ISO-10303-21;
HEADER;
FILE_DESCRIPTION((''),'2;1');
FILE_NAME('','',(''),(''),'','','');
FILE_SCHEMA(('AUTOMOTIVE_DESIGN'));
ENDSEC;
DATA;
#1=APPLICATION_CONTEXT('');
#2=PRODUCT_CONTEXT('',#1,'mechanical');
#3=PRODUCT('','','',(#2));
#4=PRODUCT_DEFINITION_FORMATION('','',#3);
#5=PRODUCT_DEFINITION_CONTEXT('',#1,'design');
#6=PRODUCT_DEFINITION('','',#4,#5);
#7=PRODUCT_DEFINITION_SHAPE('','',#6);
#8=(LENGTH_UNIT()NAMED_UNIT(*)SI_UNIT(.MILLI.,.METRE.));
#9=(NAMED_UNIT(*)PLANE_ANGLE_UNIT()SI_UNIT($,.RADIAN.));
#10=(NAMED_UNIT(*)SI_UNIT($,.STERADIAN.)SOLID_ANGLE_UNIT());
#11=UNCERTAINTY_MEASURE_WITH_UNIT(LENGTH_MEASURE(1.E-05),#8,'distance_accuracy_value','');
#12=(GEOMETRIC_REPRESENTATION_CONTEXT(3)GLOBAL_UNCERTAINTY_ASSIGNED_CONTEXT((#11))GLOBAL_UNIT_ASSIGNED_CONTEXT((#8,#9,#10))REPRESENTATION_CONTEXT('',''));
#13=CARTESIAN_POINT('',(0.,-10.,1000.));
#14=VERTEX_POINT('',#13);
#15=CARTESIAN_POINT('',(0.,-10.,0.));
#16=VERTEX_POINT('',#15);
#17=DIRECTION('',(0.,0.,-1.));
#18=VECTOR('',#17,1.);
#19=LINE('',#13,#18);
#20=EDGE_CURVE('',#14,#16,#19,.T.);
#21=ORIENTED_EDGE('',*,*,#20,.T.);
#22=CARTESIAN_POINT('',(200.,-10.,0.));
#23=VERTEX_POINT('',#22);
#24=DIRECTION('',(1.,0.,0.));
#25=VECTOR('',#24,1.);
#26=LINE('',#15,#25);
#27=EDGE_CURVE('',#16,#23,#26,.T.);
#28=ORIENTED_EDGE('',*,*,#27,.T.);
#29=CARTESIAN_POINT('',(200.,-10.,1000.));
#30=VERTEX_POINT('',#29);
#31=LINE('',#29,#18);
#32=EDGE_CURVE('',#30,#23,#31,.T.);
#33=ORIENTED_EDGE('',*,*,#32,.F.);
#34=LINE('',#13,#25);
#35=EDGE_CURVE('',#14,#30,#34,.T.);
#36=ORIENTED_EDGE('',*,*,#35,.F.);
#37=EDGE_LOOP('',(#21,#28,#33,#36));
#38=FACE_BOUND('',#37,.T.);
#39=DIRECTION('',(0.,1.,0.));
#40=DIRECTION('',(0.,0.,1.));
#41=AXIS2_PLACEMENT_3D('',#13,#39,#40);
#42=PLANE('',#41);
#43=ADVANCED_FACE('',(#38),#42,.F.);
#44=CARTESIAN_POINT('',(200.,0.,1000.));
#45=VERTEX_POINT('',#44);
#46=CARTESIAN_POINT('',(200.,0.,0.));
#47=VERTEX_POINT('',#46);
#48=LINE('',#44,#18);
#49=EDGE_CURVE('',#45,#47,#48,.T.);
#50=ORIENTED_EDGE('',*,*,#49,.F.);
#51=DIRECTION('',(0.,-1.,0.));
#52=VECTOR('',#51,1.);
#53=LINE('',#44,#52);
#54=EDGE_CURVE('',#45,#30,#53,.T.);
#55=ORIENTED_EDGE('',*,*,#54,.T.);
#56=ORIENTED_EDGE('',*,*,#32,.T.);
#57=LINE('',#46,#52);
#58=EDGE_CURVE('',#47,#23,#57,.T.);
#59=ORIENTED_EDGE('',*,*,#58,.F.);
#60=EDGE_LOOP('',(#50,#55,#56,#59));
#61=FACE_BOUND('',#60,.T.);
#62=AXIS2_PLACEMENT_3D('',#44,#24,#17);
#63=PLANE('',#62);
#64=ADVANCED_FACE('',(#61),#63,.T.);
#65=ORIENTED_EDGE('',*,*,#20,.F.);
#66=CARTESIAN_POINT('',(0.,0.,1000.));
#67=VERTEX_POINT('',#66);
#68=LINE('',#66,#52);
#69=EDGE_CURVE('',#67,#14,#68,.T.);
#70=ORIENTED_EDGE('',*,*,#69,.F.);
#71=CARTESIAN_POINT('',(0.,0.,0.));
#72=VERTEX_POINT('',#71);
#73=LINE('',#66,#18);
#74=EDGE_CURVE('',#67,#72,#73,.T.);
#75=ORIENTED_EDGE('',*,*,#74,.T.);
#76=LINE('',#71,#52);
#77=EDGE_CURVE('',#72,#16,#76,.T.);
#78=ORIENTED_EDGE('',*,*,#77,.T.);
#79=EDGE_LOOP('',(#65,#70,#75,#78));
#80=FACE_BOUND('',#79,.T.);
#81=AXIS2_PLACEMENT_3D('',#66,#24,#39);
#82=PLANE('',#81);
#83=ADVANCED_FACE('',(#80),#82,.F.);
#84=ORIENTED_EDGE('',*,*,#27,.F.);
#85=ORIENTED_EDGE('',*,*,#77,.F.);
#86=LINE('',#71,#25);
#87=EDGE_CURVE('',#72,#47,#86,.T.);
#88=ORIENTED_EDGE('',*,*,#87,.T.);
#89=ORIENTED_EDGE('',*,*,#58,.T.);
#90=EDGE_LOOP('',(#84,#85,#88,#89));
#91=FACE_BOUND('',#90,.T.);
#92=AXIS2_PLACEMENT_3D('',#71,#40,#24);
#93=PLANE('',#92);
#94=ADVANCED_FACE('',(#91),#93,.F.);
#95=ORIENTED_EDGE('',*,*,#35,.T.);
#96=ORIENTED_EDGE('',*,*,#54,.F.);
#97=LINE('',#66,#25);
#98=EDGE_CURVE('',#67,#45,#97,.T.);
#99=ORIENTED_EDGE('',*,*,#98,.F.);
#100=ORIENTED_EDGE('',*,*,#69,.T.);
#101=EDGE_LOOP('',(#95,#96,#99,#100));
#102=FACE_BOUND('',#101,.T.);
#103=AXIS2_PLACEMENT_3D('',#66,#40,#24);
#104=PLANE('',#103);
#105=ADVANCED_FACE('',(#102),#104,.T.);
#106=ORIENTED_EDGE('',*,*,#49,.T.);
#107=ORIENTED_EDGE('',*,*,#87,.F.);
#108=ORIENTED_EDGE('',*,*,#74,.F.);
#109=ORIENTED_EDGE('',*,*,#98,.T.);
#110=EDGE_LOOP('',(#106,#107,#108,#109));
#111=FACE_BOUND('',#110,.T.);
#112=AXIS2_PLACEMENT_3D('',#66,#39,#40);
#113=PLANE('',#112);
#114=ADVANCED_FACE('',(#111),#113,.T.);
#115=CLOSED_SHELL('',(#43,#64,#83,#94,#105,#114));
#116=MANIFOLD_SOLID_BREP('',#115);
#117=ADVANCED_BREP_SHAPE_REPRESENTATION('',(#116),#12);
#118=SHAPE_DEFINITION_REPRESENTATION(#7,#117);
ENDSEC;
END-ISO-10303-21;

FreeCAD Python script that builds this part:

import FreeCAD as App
import Part
import Sketcher

V = App.Vector
Q = App.Units.Quantity


def add_polygon(sketch, points):
    """Adds a closed chain of lines whose ends are joined by coincident constraints."""
    first, n = sketch.GeometryCount, len(points)
    for a, b in zip(points, points[1:] + points[:1]):
        sketch.addGeometry(Part.LineSegment(App.Vector(*a, 0), App.Vector(*b, 0)), False)
    for i in range(n):
        sketch.addConstraint(Sketcher.Constraint("Coincident", first + i, 2, first + (i + 1) % n, 1))

doc = App.newDocument("Part")
params = doc.addObject("Spreadsheet::Sheet", "Params")
for row, (alias, value) in enumerate([
    ("sketch1_width", "200 mm"),
    ("sketch1_height", "10 mm"),
    ("pad1_length", "1000 mm"),
], start=1):
    params.set(f"A{row}", alias)
    params.set(f"B{row}", "=" + value)
    params.setAlias(f"B{row}", alias)

body = doc.addObject("PartDesign::Body", "Body")

# Sketch on XY plane
sketch1 = body.newObject("Sketcher::SketchObject", "Sketch")
sketch1.AttachmentSupport = (doc.getObject("XY_Plane"), [""])
sketch1.MapMode = "FlatFace"
add_polygon(sketch1, [(0, 0), (0, -10), (200, -10), (200, 0)])  # lines 0-3
sketch1.addConstraint(Sketcher.Constraint("Vertical", 0))
sketch1.addConstraint(Sketcher.Constraint("Horizontal", 1))
sketch1.addConstraint(Sketcher.Constraint("Vertical", 2))
sketch1.addConstraint(Sketcher.Constraint("Horizontal", 3))
sketch1.addConstraint(Sketcher.Constraint("Coincident", 3, 2, -1, 1))
sketch1.addConstraint(Sketcher.Constraint("DistanceX", 1, 1, 1, 2, Q("200 mm")))
sketch1.addConstraint(Sketcher.Constraint("DistanceY", 0, 2, 0, 1, Q("10 mm")))
sketch1.setExpression("Constraints[9]", "Params.sketch1_width")
sketch1.setExpression("Constraints[10]", "Params.sketch1_height")
pad1 = body.newObject("PartDesign::Pad", "Pad")
pad1.Profile = sketch1
pad1.setExpression("Length", "Params.pad1_length")

doc.recompute()
